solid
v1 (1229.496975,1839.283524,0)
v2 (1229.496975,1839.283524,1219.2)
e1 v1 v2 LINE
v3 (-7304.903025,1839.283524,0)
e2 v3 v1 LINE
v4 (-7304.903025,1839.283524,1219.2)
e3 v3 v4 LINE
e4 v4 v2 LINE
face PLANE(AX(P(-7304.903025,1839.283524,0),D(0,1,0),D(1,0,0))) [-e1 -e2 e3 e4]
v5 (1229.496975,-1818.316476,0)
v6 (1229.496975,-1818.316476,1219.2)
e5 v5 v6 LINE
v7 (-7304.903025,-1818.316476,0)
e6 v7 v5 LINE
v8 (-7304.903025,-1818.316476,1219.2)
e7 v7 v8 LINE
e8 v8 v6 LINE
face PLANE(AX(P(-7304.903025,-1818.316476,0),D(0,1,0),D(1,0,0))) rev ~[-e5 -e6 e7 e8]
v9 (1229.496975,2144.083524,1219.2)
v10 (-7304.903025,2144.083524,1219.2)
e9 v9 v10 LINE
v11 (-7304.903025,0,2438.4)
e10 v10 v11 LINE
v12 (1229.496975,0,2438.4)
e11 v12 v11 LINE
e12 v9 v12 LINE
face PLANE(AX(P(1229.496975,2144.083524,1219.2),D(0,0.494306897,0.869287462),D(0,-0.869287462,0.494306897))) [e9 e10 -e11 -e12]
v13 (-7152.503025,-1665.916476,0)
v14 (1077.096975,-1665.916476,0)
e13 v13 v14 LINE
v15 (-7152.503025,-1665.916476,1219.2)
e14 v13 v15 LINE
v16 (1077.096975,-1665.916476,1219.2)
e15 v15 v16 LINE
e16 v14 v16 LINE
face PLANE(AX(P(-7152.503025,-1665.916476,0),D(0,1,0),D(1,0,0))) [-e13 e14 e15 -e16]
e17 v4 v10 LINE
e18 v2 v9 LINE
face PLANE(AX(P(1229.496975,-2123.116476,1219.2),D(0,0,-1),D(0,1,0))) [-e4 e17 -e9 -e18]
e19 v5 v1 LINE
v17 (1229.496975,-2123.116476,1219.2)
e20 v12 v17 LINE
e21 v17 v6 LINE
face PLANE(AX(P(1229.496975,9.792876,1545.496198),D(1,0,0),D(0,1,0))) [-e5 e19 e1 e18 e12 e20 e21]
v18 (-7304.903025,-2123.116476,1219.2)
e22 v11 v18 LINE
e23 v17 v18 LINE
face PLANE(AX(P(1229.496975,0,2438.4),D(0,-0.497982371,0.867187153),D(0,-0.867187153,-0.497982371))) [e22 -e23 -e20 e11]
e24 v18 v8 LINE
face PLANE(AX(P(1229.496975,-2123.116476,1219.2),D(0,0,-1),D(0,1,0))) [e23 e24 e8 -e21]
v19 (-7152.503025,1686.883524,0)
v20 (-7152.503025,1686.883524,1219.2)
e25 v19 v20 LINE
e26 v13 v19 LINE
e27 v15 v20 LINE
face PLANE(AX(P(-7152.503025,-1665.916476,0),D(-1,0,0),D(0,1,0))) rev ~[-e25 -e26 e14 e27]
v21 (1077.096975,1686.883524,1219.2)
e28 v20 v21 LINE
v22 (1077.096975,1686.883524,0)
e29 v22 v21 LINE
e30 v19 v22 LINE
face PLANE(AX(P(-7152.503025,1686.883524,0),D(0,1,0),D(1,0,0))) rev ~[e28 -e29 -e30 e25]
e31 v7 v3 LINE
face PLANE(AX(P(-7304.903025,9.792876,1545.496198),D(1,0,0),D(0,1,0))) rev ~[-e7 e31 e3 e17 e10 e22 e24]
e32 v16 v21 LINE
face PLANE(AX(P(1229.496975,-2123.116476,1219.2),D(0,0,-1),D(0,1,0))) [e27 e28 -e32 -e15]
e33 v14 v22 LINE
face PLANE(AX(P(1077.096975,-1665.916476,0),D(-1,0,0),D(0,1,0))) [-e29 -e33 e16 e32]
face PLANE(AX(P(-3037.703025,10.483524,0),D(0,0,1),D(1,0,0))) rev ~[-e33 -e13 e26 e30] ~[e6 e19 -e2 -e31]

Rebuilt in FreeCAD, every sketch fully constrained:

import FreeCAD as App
import Part
import Sketcher
Q = App.Units.Quantity

doc = App.newDocument("Part")
body = doc.addObject("PartDesign::Body", "Body")

sketch1 = doc.addObject("Sketcher::SketchObject", "Sketch")
body.addObject(sketch1)
sketch1.AttachmentSupport = (doc.XY_Plane, [""])
sketch1.MapMode = "FlatFace"
sketch1.addGeometry(Part.LineSegment(App.Vector(-7304.903025, 1839.283524, 0), App.Vector(-7304.903025, -1818.316476, 0)), False)
sketch1.addGeometry(Part.LineSegment(App.Vector(-7304.903025, -1818.316476, 0), App.Vector(1229.496975, -1818.316476, 0)), False)
sketch1.addGeometry(Part.LineSegment(App.Vector(1229.496975, -1818.316476, 0), App.Vector(1229.496975, 1839.283524, 0)), False)
sketch1.addGeometry(Part.LineSegment(App.Vector(1229.496975, 1839.283524, 0), App.Vector(-7304.903025, 1839.283524, 0)), False)
sketch1.addGeometry(Part.LineSegment(App.Vector(1077.096975, -1665.916476, 0), App.Vector(-7152.503025, -1665.916476, 0)), False)
sketch1.addGeometry(Part.LineSegment(App.Vector(-7152.503025, -1665.916476, 0), App.Vector(-7152.503025, 1686.883524, 0)), False)
sketch1.addGeometry(Part.LineSegment(App.Vector(-7152.503025, 1686.883524, 0), App.Vector(1077.096975, 1686.883524, 0)), False)
sketch1.addGeometry(Part.LineSegment(App.Vector(1077.096975, 1686.883524, 0), App.Vector(1077.096975, -1665.916476, 0)), False)
sketch1.addConstraint(Sketcher.Constraint("Coincident", 0, 2, 1, 1))
sketch1.addConstraint(Sketcher.Constraint("Coincident", 1, 2, 2, 1))
sketch1.addConstraint(Sketcher.Constraint("Coincident", 2, 2, 3, 1))
sketch1.addConstraint(Sketcher.Constraint("Coincident", 3, 2, 0, 1))
sketch1.addConstraint(Sketcher.Constraint("Coincident", 4, 2, 5, 1))
sketch1.addConstraint(Sketcher.Constraint("Coincident", 5, 2, 6, 1))
sketch1.addConstraint(Sketcher.Constraint("Coincident", 6, 2, 7, 1))
sketch1.addConstraint(Sketcher.Constraint("Coincident", 7, 2, 4, 1))
sketch1.addConstraint(Sketcher.Constraint("Vertical", 0))
sketch1.addConstraint(Sketcher.Constraint("Horizontal", 1))
sketch1.addConstraint(Sketcher.Constraint("Vertical", 2))
sketch1.addConstraint(Sketcher.Constraint("Horizontal", 3))
sketch1.addConstraint(Sketcher.Constraint("Horizontal", 4))
sketch1.addConstraint(Sketcher.Constraint("Vertical", 5))
sketch1.addConstraint(Sketcher.Constraint("Horizontal", 6))
sketch1.addConstraint(Sketcher.Constraint("Vertical", 7))
sketch1.addConstraint(Sketcher.Constraint("DistanceX", 1, 1, 1, 2, Q("336 in")))
sketch1.addConstraint(Sketcher.Constraint("DistanceX", 4, 2, 4, 1, Q("324 in")))
sketch1.addConstraint(Sketcher.Constraint("DistanceY", 0, 2, 0, 1, Q("144 in")))
sketch1.addConstraint(Sketcher.Constraint("DistanceY", 5, 1, 5, 2, Q("132 in")))
sketch1.addConstraint(Sketcher.Constraint("DistanceX", 0, 2, 4, 2, Q("6 in")))
sketch1.addConstraint(Sketcher.Constraint("DistanceY", 0, 2, 4, 2, Q("6 in")))
sketch1.addConstraint(Sketcher.Constraint("DistanceX", 0, 2, -1, 1, 7304.903025))
sketch1.addConstraint(Sketcher.Constraint("DistanceY", 0, 2, -1, 1, 1818.316476))
pad1 = doc.addObject("PartDesign::Pad", "Pad")
body.addObject(pad1)
pad1.Profile = sketch1
pad1.Length = Q("48 in")

sketch2 = doc.addObject("Sketcher::SketchObject", "Sketch001")
body.addObject(sketch2)
sketch2.AttachmentSupport = (doc.YZ_Plane, [""])
sketch2.MapMode = "FlatFace"
sketch2.AttachmentOffset = App.Placement(App.Vector(0, 0, 1229.496975), App.Rotation())
sketch2.addGeometry(Part.LineSegment(App.Vector(-2123, 1219, 0), App.Vector(2144, 1219, 0)), False)
sketch2.addGeometry(Part.LineSegment(App.Vector(2144, 1219, 0), App.Vector(0, 2438, 0)), False)
sketch2.addGeometry(Part.LineSegment(App.Vector(0, 2438, 0), App.Vector(-2123, 1219, 0)), False)
sketch2.addConstraint(Sketcher.Constraint("Coincident", 0, 2, 1, 1))
sketch2.addConstraint(Sketcher.Constraint("Coincident", 1, 2, 2, 1))
sketch2.addConstraint(Sketcher.Constraint("Coincident", 2, 2, 0, 1))
sketch2.addConstraint(Sketcher.Constraint("Horizontal", 0))
sketch2.addConstraint(Sketcher.Constraint("PointOnObject", 1, 2, -2))
sketch2.addConstraint(Sketcher.Constraint("DistanceX", 0, 1, 0, 2, Q("168 in")))
sketch2.addConstraint(Sketcher.Constraint("DistanceY", -1, 1, 0, 2, Q("48 in")))
sketch2.addConstraint(Sketcher.Constraint("DistanceY", -1, 1, 1, 2, Q("96 in")))
sketch2.addConstraint(Sketcher.Constraint("Distance", 2, 2448.279439))
pad2 = doc.addObject("PartDesign::Pad", "Pad001")
body.addObject(pad2)
pad2.Profile = sketch2
pad2.Length = Q("336 in")
pad2.Reversed = True

doc.recompute()
